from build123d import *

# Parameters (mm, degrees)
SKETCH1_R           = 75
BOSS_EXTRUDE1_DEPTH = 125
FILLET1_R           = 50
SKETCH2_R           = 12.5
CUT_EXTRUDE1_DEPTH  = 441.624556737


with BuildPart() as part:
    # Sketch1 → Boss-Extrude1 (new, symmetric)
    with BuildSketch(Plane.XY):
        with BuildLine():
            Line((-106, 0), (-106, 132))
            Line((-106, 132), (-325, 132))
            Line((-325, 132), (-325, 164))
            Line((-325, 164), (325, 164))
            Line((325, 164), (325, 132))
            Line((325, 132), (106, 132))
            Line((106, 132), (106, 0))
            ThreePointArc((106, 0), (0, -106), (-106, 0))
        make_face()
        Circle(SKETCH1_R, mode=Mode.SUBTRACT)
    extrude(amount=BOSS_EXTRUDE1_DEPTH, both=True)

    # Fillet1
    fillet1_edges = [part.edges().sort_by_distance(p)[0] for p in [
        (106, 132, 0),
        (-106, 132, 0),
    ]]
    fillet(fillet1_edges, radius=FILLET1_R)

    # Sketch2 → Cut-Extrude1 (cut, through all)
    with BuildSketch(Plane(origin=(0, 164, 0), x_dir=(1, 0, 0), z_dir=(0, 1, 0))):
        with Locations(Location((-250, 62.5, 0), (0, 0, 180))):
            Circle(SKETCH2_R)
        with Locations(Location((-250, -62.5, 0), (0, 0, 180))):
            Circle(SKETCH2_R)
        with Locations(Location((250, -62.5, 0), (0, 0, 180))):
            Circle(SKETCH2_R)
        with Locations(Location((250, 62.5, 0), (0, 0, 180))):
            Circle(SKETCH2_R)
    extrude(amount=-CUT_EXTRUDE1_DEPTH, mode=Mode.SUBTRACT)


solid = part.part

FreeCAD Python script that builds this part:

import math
import FreeCAD as App
import Part
import Sketcher

V = App.Vector


def edges_at(feature, points):
    """Names of the edges that pass closest to the given points."""
    edges = feature.Shape.Edges
    near = lambda p: min(range(len(edges)), key=lambda i: edges[i].distToShape(Part.Vertex(*p))[0])
    return sorted({f"Edge{near(p) + 1}" for p in points})

doc = App.newDocument("Part")
body = doc.addObject("PartDesign::Body", "Body")

# Sketch on XY plane
sketch1 = doc.addObject("Sketcher::SketchObject", "Sketch")
body.addObject(sketch1)
sketch1.AttachmentSupport = (doc.XY_Plane, [""])
sketch1.MapMode = "FlatFace"
sketch1.addGeometry(Part.LineSegment(V(-106, 132, 0), V(-106, 0, 0)), False)
sketch1.addGeometry(Part.ArcOfCircle(Part.Circle(V(0, 0, 0), V(0, 0, 1), 106), math.radians(180), math.radians(360)), False)
sketch1.addGeometry(Part.LineSegment(V(106, 0, 0), V(106, 132, 0)), False)
sketch1.addGeometry(Part.LineSegment(V(106, 132, 0), V(325, 132, 0)), False)
sketch1.addGeometry(Part.LineSegment(V(325, 132, 0), V(325, 164, 0)), False)
sketch1.addGeometry(Part.LineSegment(V(325, 164, 0), V(-325, 164, 0)), False)
sketch1.addGeometry(Part.LineSegment(V(-325, 164, 0), V(-325, 132, 0)), False)
sketch1.addGeometry(Part.LineSegment(V(-325, 132, 0), V(-106, 132, 0)), False)
sketch1.addGeometry(Part.Circle(V(0, 0, 0), V(0, 0, 1), 75), False)
sketch1.addConstraint(Sketcher.Constraint("Tangent", 0, 2, 1, 1))
sketch1.addConstraint(Sketcher.Constraint("Tangent", 1, 2, 2, 1))
sketch1.addConstraint(Sketcher.Constraint("Coincident", 2, 2, 3, 1))
sketch1.addConstraint(Sketcher.Constraint("Coincident", 3, 2, 4, 1))
sketch1.addConstraint(Sketcher.Constraint("Coincident", 4, 2, 5, 1))
sketch1.addConstraint(Sketcher.Constraint("Coincident", 5, 2, 6, 1))
sketch1.addConstraint(Sketcher.Constraint("Coincident", 6, 2, 7, 1))
sketch1.addConstraint(Sketcher.Constraint("Coincident", 7, 2, 0, 1))
sketch1.addConstraint(Sketcher.Constraint("Vertical", 0))
sketch1.addConstraint(Sketcher.Constraint("Vertical", 2))
sketch1.addConstraint(Sketcher.Constraint("Horizontal", 3))
sketch1.addConstraint(Sketcher.Constraint("Vertical", 4))
sketch1.addConstraint(Sketcher.Constraint("Horizontal", 5))
sketch1.addConstraint(Sketcher.Constraint("Vertical", 6))
sketch1.addConstraint(Sketcher.Constraint("Horizontal", 7))
sketch1.addConstraint(Sketcher.Constraint("Coincident", 1, 3, -1, 1))
sketch1.addConstraint(Sketcher.Constraint("Coincident", 8, 3, -1, 1))
sketch1.addConstraint(Sketcher.Constraint("Symmetric", 3, 2, 6, 2, -2))
sketch1.addConstraint(Sketcher.Constraint("Diameter", 8, 150.0))
sketch1.addConstraint(Sketcher.Constraint("Radius", 1, 106.0))
sketch1.addConstraint(Sketcher.Constraint("DistanceX", 3, 1, 3, 2, 219.0))
sketch1.addConstraint(Sketcher.Constraint("DistanceY", 0, 2, 0, 1, 132.0))
sketch1.addConstraint(Sketcher.Constraint("DistanceY", 4, 1, 4, 2, 32.0))
pad1 = doc.addObject("PartDesign::Pad", "Pad")
body.addObject(pad1)
pad1.Profile = sketch1
pad1.Length = 250
pad1.Midplane = True
doc.recompute()

fillet = doc.addObject("PartDesign::Fillet", "Fillet")
body.addObject(fillet)
fillet.Base = (pad1, edges_at(pad1, [(106, 132, 0), (-106, 132, 0)]))
fillet.Radius = 50

# Sketch on XZ plane
sketch2 = doc.addObject("Sketcher::SketchObject", "Sketch001")
body.addObject(sketch2)
sketch2.AttachmentSupport = (doc.XZ_Plane, [""])
sketch2.MapMode = "FlatFace"
sketch2.AttachmentOffset = App.Placement(V(0, 0, -164), App.Rotation())
sketch2.addGeometry(Part.Circle(V(-250, -62, 0), V(0, 0, 1), 12), False)
sketch2.addGeometry(Part.Circle(V(-250, 62, 0), V(0, 0, 1), 12), False)
sketch2.addGeometry(Part.Circle(V(250, 62, 0), V(0, 0, 1), 12), False)
sketch2.addGeometry(Part.Circle(V(250, -62, 0), V(0, 0, 1), 12), False)
sketch2.addConstraint(Sketcher.Constraint("Equal", 0, 1))
sketch2.addConstraint(Sketcher.Constraint("Equal", 1, 2))
sketch2.addConstraint(Sketcher.Constraint("Equal", 2, 3))
sketch2.addConstraint(Sketcher.Constraint("Symmetric", 0, 3, 2, 3, -1, 1))
sketch2.addConstraint(Sketcher.Constraint("Symmetric", 1, 3, 3, 3, -1, 1))
sketch2.addConstraint(Sketcher.Constraint("Symmetric", 1, 3, 2, 3, -2))
sketch2.addConstraint(Sketcher.Constraint("Diameter", 0, 25.0))
sketch2.addConstraint(Sketcher.Constraint("DistanceX", 0, 3, -1, 1, 250.0))
sketch2.addConstraint(Sketcher.Constraint("DistanceY", 0, 3, 1, 3, 125.0))
pocket1 = doc.addObject("PartDesign::Pocket", "Pocket")
body.addObject(pocket1)
pocket1.Profile = sketch2
pocket1.Type = "ThroughAll"
pocket1.Reversed = True

doc.recompute()
